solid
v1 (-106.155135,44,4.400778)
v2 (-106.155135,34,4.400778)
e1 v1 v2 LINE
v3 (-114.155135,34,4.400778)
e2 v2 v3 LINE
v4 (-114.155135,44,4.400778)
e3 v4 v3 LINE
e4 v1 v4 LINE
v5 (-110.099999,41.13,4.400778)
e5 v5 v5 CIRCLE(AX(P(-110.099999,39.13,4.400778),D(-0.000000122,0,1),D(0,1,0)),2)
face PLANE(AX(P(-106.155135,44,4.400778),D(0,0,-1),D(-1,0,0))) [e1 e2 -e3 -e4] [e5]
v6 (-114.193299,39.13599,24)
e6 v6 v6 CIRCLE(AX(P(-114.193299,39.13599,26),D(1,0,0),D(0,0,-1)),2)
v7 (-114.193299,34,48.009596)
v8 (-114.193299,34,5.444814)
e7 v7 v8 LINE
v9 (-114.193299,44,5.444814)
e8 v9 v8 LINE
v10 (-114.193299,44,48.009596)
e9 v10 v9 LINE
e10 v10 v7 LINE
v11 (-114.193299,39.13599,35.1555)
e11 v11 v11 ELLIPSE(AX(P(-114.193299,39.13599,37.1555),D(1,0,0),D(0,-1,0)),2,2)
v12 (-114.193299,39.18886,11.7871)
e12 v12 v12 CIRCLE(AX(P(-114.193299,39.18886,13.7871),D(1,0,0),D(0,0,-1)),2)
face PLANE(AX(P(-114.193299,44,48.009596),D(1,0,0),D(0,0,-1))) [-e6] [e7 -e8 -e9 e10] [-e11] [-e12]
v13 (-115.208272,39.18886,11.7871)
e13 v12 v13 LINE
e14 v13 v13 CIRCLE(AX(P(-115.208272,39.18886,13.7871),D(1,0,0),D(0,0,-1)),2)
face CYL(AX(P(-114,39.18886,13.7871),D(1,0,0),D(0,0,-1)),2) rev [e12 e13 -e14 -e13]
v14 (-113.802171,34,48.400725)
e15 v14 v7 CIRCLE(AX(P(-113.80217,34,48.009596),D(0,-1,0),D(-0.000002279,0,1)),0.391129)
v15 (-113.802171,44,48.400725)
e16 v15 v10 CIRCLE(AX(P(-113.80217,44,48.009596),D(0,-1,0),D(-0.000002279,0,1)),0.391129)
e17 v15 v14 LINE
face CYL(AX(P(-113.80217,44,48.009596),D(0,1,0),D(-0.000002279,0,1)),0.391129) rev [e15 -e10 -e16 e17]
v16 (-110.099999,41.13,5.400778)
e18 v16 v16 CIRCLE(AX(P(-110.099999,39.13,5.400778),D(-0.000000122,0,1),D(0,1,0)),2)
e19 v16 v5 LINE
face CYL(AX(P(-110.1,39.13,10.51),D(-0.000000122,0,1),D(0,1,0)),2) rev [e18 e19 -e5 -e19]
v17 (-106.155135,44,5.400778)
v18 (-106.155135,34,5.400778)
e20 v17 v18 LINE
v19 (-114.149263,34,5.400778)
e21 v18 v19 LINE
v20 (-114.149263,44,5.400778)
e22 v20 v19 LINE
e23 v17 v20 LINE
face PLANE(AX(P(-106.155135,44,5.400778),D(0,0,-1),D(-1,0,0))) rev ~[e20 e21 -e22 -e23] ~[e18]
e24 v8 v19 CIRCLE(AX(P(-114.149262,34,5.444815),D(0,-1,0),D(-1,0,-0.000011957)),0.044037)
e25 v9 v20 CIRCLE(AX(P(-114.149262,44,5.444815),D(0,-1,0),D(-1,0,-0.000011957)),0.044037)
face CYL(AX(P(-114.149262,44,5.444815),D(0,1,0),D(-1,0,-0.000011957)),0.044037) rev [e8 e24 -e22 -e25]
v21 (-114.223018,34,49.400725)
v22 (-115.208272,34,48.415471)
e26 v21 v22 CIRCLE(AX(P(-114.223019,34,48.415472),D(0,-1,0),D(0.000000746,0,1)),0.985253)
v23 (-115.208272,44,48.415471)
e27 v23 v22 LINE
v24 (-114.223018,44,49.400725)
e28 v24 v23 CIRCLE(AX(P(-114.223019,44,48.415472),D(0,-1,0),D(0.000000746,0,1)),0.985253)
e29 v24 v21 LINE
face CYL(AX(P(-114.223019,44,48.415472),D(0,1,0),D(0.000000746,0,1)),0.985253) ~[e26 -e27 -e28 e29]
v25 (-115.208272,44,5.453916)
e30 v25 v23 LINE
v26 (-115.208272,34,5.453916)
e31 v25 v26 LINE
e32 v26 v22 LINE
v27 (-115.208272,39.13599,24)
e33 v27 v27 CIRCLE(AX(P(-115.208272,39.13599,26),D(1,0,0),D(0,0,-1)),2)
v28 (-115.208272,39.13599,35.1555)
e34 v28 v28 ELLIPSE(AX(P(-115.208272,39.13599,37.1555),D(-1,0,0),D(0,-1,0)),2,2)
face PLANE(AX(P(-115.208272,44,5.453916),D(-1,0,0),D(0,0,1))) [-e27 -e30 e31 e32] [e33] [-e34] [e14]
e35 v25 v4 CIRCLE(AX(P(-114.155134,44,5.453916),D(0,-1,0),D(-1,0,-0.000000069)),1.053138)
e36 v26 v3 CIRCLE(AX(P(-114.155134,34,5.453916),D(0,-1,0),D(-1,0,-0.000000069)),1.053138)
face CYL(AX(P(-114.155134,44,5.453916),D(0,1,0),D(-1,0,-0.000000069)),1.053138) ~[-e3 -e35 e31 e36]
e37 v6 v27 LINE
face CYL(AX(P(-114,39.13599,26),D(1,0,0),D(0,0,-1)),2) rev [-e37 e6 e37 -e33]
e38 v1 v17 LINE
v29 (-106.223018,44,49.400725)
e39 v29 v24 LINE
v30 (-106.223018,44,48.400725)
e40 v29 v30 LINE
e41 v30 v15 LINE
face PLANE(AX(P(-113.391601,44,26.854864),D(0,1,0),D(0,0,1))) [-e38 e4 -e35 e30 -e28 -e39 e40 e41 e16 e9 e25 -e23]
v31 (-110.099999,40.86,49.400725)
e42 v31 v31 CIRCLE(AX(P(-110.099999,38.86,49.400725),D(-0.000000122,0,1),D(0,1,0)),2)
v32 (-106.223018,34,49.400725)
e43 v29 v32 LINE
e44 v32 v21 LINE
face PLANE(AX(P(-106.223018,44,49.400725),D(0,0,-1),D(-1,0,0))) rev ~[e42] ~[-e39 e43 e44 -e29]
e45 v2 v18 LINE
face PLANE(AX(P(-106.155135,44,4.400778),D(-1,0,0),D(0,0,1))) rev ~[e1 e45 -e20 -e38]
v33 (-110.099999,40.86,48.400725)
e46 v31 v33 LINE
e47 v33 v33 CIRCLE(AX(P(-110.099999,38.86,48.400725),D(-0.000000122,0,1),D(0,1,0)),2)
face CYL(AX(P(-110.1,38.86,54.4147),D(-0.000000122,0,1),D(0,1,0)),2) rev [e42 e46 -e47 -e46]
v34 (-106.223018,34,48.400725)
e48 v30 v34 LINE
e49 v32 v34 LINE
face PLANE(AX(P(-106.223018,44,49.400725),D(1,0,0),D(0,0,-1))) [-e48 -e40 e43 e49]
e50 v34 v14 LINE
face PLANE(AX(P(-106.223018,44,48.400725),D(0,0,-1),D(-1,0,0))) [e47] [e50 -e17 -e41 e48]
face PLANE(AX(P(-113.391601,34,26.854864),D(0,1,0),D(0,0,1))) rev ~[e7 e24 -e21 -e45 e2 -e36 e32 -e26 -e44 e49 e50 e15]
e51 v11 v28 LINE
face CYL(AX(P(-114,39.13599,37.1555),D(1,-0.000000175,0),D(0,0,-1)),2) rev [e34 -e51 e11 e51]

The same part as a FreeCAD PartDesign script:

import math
import FreeCAD as App
import Part
import Sketcher
Q = App.Units.Quantity

doc = App.newDocument("Part")
body = doc.addObject("PartDesign::Body", "Body")

# Sketch on XY plane
sketch1 = doc.addObject("Sketcher::SketchObject", "Sketch")
body.addObject(sketch1)
sketch1.AttachmentSupport = (doc.XY_Plane, [""])
sketch1.MapMode = "FlatFace"
sketch1.addGeometry(Part.Circle(App.Vector(0, 0, 0), App.Vector(0, 0, 1), 2), False)
sketch1.addConstraint([
    Sketcher.Constraint("Coincident", 0, 3, -1, 1),
    Sketcher.Constraint("Diameter", 0, Q("4 mm")),
])
pad1 = doc.addObject("PartDesign::Pad", "Pad")
body.addObject(pad1)
pad1.Profile = sketch1
pad1.Length = 10
body2 = doc.addObject("PartDesign::Body", "Body001")
doc.recompute()

body.Placement = App.Placement(App.Vector(0, 0, 0), App.Rotation(App.Vector(0, 1, 0), 90))
boolean = doc.addObject("PartDesign::Boolean", "Boolean")
body2.addObject(boolean)
boolean.Type = "Fuse"
boolean.addObjects([body])
body3 = doc.addObject("PartDesign::Body", "Body002")
doc.recompute()

body2.Placement = App.Placement(App.Vector(15.49, 3.9, 4.87), App.Rotation(App.Vector(0, 0, 1), 0.000007))
boolean2 = doc.addObject("PartDesign::Boolean", "Boolean001")
body3.addObject(boolean2)
boolean2.Type = "Fuse"
boolean2.addObjects([body2])
body4 = doc.addObject("PartDesign::Body", "Body003")

# Sketch on XY plane
sketch2 = doc.addObject("Sketcher::SketchObject", "Sketch001")
body4.addObject(sketch2)
sketch2.AttachmentSupport = (doc.getObject("XY_Plane003"), [""])
sketch2.MapMode = "FlatFace"
sketch2.addGeometry(Part.Circle(App.Vector(0, 0, 0), App.Vector(0, 0, 1), 2), False)
sketch2.addConstraint([
    Sketcher.Constraint("Coincident", 0, 3, -1, 1),
    Sketcher.Constraint("Diameter", 0, Q("4 mm")),
])
pad2 = doc.addObject("PartDesign::Pad", "Pad001")
body4.addObject(pad2)
pad2.Profile = sketch2
pad2.Length = 10
body5 = doc.addObject("PartDesign::Body", "Body004")
doc.recompute()

body4.Placement = App.Placement(App.Vector(0, 0, 0), App.Rotation(App.Vector(0, 1, 0), 90))
boolean3 = doc.addObject("PartDesign::Boolean", "Boolean002")
body5.addObject(boolean3)
boolean3.Type = "Fuse"
boolean3.addObjects([body4])
body6 = doc.addObject("PartDesign::Body", "Body005")
doc.recompute()

body5.Placement = App.Placement(App.Vector(-28.4147, 3.9, 5.14), App.Rotation(App.Vector(0, 0, 1), 0.000007))
boolean4 = doc.addObject("PartDesign::Boolean", "Boolean003")
body6.addObject(boolean4)
boolean4.Type = "Fuse"
boolean4.addObjects([body5])
body7 = doc.addObject("PartDesign::Body", "Body006")

# Sketch on XY plane
sketch3 = doc.addObject("Sketcher::SketchObject", "Sketch002")
body7.addObject(sketch3)
sketch3.AttachmentSupport = (doc.getObject("XY_Plane006"), [""])
sketch3.MapMode = "FlatFace"
sketch3.addGeometry(Part.Circle(App.Vector(0, 0, 0), App.Vector(0, 0, 1), 2), False)
sketch3.addConstraint([
    Sketcher.Constraint("Coincident", 0, 3, -1, 1),
    Sketcher.Constraint("Diameter", 0, Q("4 mm")),
])
pad3 = doc.addObject("PartDesign::Pad", "Pad002")
body7.addObject(pad3)
pad3.Profile = sketch3
pad3.Length = 2
body8 = doc.addObject("PartDesign::Body", "Body007")
doc.recompute()

body7.Placement = App.Placement(App.Vector(0, 0, 0), App.Rotation(App.Vector(1, 0, 0), 271.492946))
boolean5 = doc.addObject("PartDesign::Boolean", "Boolean004")
body8.addObject(boolean5)
boolean5.Type = "Fuse"
boolean5.addObjects([body7])
body9 = doc.addObject("PartDesign::Body", "Body008")
doc.recompute()

body8.Placement = App.Placement(App.Vector(0, 0, 0), App.Rotation(App.Vector(0, 1, 0), 272.98249))
boolean6 = doc.addObject("PartDesign::Boolean", "Boolean005")
body9.addObject(boolean6)
boolean6.Type = "Fuse"
boolean6.addObjects([body8])
body10 = doc.addObject("PartDesign::Body", "Body009")
doc.recompute()

body9.Placement = App.Placement(App.Vector(-26, 5.29, 4.9), App.Rotation(App.Vector(0, 0, 1), 267.755985))
boolean7 = doc.addObject("PartDesign::Boolean", "Boolean006")
body10.addObject(boolean7)
boolean7.Type = "Fuse"
boolean7.addObjects([body9])
body11 = doc.addObject("PartDesign::Body", "Body010")

# Sketch on XY plane
sketch4 = doc.addObject("Sketcher::SketchObject", "Sketch003")
body11.addObject(sketch4)
sketch4.AttachmentSupport = (doc.getObject("XY_Plane010"), [""])
sketch4.MapMode = "FlatFace"
sketch4.addGeometry(Part.Circle(App.Vector(0, 0, 0), App.Vector(0, 0, 1), 2), False)
sketch4.addConstraint([
    Sketcher.Constraint("Coincident", 0, 3, -1, 1),
    Sketcher.Constraint("Diameter", 0, Q("4 mm")),
])
pad4 = doc.addObject("PartDesign::Pad", "Pad003")
body11.addObject(pad4)
pad4.Profile = sketch4
pad4.Length = 2
body12 = doc.addObject("PartDesign::Body", "Body011")
doc.recompute()

body11.Placement = App.Placement(App.Vector(-11.1555, 0, 4.86401), App.Rotation(App.Vector(1, 0, 0), 90.00001))
boolean8 = doc.addObject("PartDesign::Boolean", "Boolean007")
body12.addObject(boolean8)
boolean8.Type = "Fuse"
boolean8.addObjects([body11])
body13 = doc.addObject("PartDesign::Body", "Body012")

# Sketch on XY plane
sketch5 = doc.addObject("Sketcher::SketchObject", "Sketch004")
body13.addObject(sketch5)
sketch5.AttachmentSupport = (doc.getObject("XY_Plane012"), [""])
sketch5.MapMode = "FlatFace"
sketch5.addGeometry(Part.Circle(App.Vector(0, 0, 0), App.Vector(0, 0, 1), 2), False)
sketch5.addConstraint([
    Sketcher.Constraint("Coincident", 0, 3, -1, 1),
    Sketcher.Constraint("Diameter", 0, Q("4 mm")),
])
pad5 = doc.addObject("PartDesign::Pad", "Pad004")
body13.addObject(pad5)
pad5.Profile = sketch5
pad5.Length = 2
body14 = doc.addObject("PartDesign::Body", "Body013")
doc.recompute()

body13.Placement = App.Placement(App.Vector(0, 0, 0), App.Rotation(App.Vector(1, 0, 0), 90))
boolean9 = doc.addObject("PartDesign::Boolean", "Boolean008")
body14.addObject(boolean9)
boolean9.Type = "Fuse"
boolean9.addObjects([body13])
body15 = doc.addObject("PartDesign::Body", "Body014")
doc.recompute()

body14.Placement = App.Placement(App.Vector(0, 0, 4.86401), App.Rotation(App.Vector(0, 0, 1), 0))
boolean10 = doc.addObject("PartDesign::Boolean", "Boolean009")
body15.addObject(boolean10)
boolean10.Type = "Fuse"
boolean10.addObjects([body14])
body16 = doc.addObject("PartDesign::Body", "Body015")

# Sketch on XY plane
sketch6 = doc.addObject("Sketcher::SketchObject", "Sketch005")
body16.addObject(sketch6)
sketch6.AttachmentSupport = (doc.getObject("XY_Plane015"), [""])
sketch6.MapMode = "FlatFace"
sketch6.addGeometry(Part.Circle(App.Vector(0, 0, 0), App.Vector(0, 0, 1), 2), False)
sketch6.addConstraint([
    Sketcher.Constraint("Coincident", 0, 3, -1, 1),
    Sketcher.Constraint("Diameter", 0, Q("4 mm")),
])
pad6 = doc.addObject("PartDesign::Pad", "Pad005")
body16.addObject(pad6)
pad6.Profile = sketch6
pad6.Length = 2
body17 = doc.addObject("PartDesign::Body", "Body016")
doc.recompute()

body16.Placement = App.Placement(App.Vector(0, 0, 0), App.Rotation(App.Vector(1, 0, 0), 90))
boolean11 = doc.addObject("PartDesign::Boolean", "Boolean010")
body17.addObject(boolean11)
boolean11.Type = "Fuse"
boolean11.addObjects([body16])
body18 = doc.addObject("PartDesign::Body", "Body017")
doc.recompute()

body17.Placement = App.Placement(App.Vector(12.2129, 0, 4.81114), App.Rotation(App.Vector(0, 0, 1), 0))
boolean12 = doc.addObject("PartDesign::Boolean", "Boolean011")
body18.addObject(boolean12)
boolean12.Type = "Fuse"
boolean12.addObjects([body17])
body19 = doc.addObject("PartDesign::Body", "Body018")

# Sketch on XY plane
sketch7 = doc.addObject("Sketcher::SketchObject", "Sketch006")
body19.addObject(sketch7)
sketch7.AttachmentSupport = (doc.getObject("XY_Plane018"), [""])
sketch7.MapMode = "FlatFace"
sketch7.addGeometry(Part.Circle(App.Vector(0, 0, 0), App.Vector(0, 0, 1), 2), False)
sketch7.addConstraint([
    Sketcher.Constraint("Coincident", 0, 3, -1, 1),
    Sketcher.Constraint("Diameter", 0, Q("4 mm")),
])
pad7 = doc.addObject("PartDesign::Pad", "Pad006")
body19.addObject(pad7)
pad7.Profile = sketch7
pad7.Length = 2
body20 = doc.addObject("PartDesign::Body", "Body019")
doc.recompute()

body19.Placement = App.Placement(App.Vector(0, 0, 0), App.Rotation(App.Vector(1, 0, 0), 271.492946))
boolean13 = doc.addObject("PartDesign::Boolean", "Boolean012")
body20.addObject(boolean13)
boolean13.Type = "Fuse"
boolean13.addObjects([body19])
body21 = doc.addObject("PartDesign::Body", "Body020")
doc.recompute()

body20.Placement = App.Placement(App.Vector(0, 0, 0), App.Rotation(App.Vector(0, 1, 0), 272.98249))
boolean14 = doc.addObject("PartDesign::Boolean", "Boolean013")
body21.addObject(boolean14)
boolean14.Type = "Fuse"
boolean14.addObjects([body20])
body22 = doc.addObject("PartDesign::Body", "Body021")
doc.recompute()

body21.Placement = App.Placement(App.Vector(25, 5.38, 4.9), App.Rotation(App.Vector(0, 0, 1), 267.755985))
boolean15 = doc.addObject("PartDesign::Boolean", "Boolean014")
body22.addObject(boolean15)
boolean15.Type = "Fuse"
boolean15.addObjects([body21])
body23 = doc.addObject("PartDesign::Body", "Body022")

# Sketch on XY plane
sketch8 = doc.addObject("Sketcher::SketchObject", "Sketch007")
body23.addObject(sketch8)
sketch8.AttachmentSupport = (doc.getObject("XY_Plane022"), [""])
sketch8.MapMode = "FlatFace"
sketch8.addGeometry([
    Part.LineSegment(App.Vector(-22.415471, -1.208272, 0), App.Vector(20.546084, -1.208272, 0)),  # 0
    Part.ArcOfCircle(Part.Circle(App.Vector(20.546084, -0.155134, 0), App.Vector(0, 0, 1), 1.053138), math.radians(-89.999996), math.radians(-0.000058)),  # 1
    Part.LineSegment(App.Vector(21.599222, -0.155135, 0), App.Vector(21.599222, 7.844865, 0)),  # 2
    Part.LineSegment(App.Vector(21.599222, 7.844865, 0), App.Vector(20.599222, 7.844865, 0)),  # 3
    Part.LineSegment(App.Vector(20.599222, 7.844865, 0), App.Vector(20.599222, -0.149263, 0)),  # 4
    Part.ArcOfCircle(Part.Circle(App.Vector(20.555185, -0.149262, 0), App.Vector(0, 0, 1), 0.044037), math.radians(-89.999314), math.radians(-0.000686)),  # 5
    Part.LineSegment(App.Vector(20.555186, -0.193299, 0), App.Vector(-22.009596, -0.193299, 0)),  # 6
    Part.ArcOfCircle(Part.Circle(App.Vector(-22.009596, 0.19783, 0), App.Vector(0, 0, 1), 0.391129), math.radians(-179.999869), math.radians(-89.999984)),  # 7
    Part.LineSegment(App.Vector(-22.400725, 0.197829, 0), App.Vector(-22.400725, 7.776982, 0)),  # 8
    Part.LineSegment(App.Vector(-22.400725, 7.776982, 0), App.Vector(-23.400725, 7.776982, 0)),  # 9
    Part.LineSegment(App.Vector(-23.400725, 7.776982, 0), App.Vector(-23.400725, -0.223018, 0)),  # 10
    Part.ArcOfCircle(Part.Circle(App.Vector(-22.415472, -0.223019, 0), App.Vector(0, 0, 1), 0.985253), math.radians(179.999957), math.radians(270.000043)),  # 11
], False)
sketch8.addConstraint([
    Sketcher.Constraint("Tangent", 0, 2, 1, 1),
    Sketcher.Constraint("Tangent", 1, 2, 2, 1),
    Sketcher.Constraint("Coincident", 2, 2, 3, 1),
    Sketcher.Constraint("Coincident", 3, 2, 4, 1),
    Sketcher.Constraint("Coincident", 4, 2, 5, 2),
    Sketcher.Constraint("Coincident", 5, 1, 6, 1),
    Sketcher.Constraint("Tangent", 6, 2, 7, 2),
    Sketcher.Constraint("Coincident", 7, 1, 8, 1),
    Sketcher.Constraint("Coincident", 8, 2, 9, 1),
    Sketcher.Constraint("Coincident", 9, 2, 10, 1),
    Sketcher.Constraint("Tangent", 10, 2, 11, 1),
    Sketcher.Constraint("Tangent", 11, 2, 0, 1),
    Sketcher.Constraint("Horizontal", 0),
    Sketcher.Constraint("Vertical", 2),
    Sketcher.Constraint("Horizontal", 3),
    Sketcher.Constraint("Vertical", 4),
    Sketcher.Constraint("Horizontal", 6),
    Sketcher.Constraint("Vertical", 8),
    Sketcher.Constraint("Horizontal", 9),
    Sketcher.Constraint("Vertical", 10),
    Sketcher.Constraint("Horizontal", 5, 3, 4, 2),
    Sketcher.Constraint("Equal", 3, 9),
    Sketcher.Constraint("Equal", 2, 10),
    Sketcher.Constraint("DistanceX", 3, 2, 3, 1, Q("1 mm")),
    Sketcher.Constraint("DistanceY", 2, 1, 2, 2, Q("8 mm")),
    Sketcher.Constraint("Radius", 1, Q("1.053138 mm")),
    Sketcher.Constraint("Radius", 7, Q("0.391129 mm")),
    Sketcher.Constraint("Radius", 5, Q("0.044037 mm")),
    Sketcher.Constraint("Radius", 11, Q("0.985253 mm")),
    Sketcher.Constraint("DistanceX", 6, 2, 6, 1, Q("42.564782 mm")),
    Sketcher.Constraint("DistanceY", 4, 2, 4, 1, Q("7.994128 mm")),
    Sketcher.Constraint("DistanceY", 5, 1, -1, 1, Q("0.193299 mm")),
    Sketcher.Constraint("DistanceX", 0, 2, 5, 1, Q("0.009102 mm")),
    Sketcher.Constraint("DistanceY", 11, 2, 7, 1, Q("1.406101 mm")),
    Sketcher.Constraint("DistanceX", 11, 3, -1, 1, Q("22.415472 mm")),
])
pad8 = doc.addObject("PartDesign::Pad", "Pad007")
body23.addObject(pad8)
pad8.Profile = sketch8
pad8.Length = 10
doc.recompute()

boolean16 = doc.addObject("PartDesign::Boolean", "Boolean015")
body23.addObject(boolean16)
boolean16.Type = "Cut"
boolean16.addObjects([body22])
doc.recompute()

boolean17 = doc.addObject("PartDesign::Boolean", "Boolean016")
body23.addObject(boolean17)
boolean17.Type = "Cut"
boolean17.addObjects([body18])
doc.recompute()

boolean18 = doc.addObject("PartDesign::Boolean", "Boolean017")
body23.addObject(boolean18)
boolean18.Type = "Cut"
boolean18.addObjects([body15])
doc.recompute()

boolean19 = doc.addObject("PartDesign::Boolean", "Boolean018")
body23.addObject(boolean19)
boolean19.Type = "Cut"
boolean19.addObjects([body12])
doc.recompute()

boolean20 = doc.addObject("PartDesign::Boolean", "Boolean019")
body23.addObject(boolean20)
boolean20.Type = "Cut"
boolean20.addObjects([body10])
doc.recompute()

boolean21 = doc.addObject("PartDesign::Boolean", "Boolean020")
body23.addObject(boolean21)
boolean21.Type = "Cut"
boolean21.addObjects([body6])
doc.recompute()

boolean22 = doc.addObject("PartDesign::Boolean", "Boolean021")
body23.addObject(boolean22)
boolean22.Type = "Cut"
boolean22.addObjects([body3])
body24 = doc.addObject("PartDesign::Body", "Body023")
doc.recompute()

body23.Placement = App.Placement(App.Vector(0, 0, 0), App.Rotation(App.Vector(0, 1, 0), 90))
boolean23 = doc.addObject("PartDesign::Boolean", "Boolean022")
body24.addObject(boolean23)
boolean23.Type = "Fuse"
boolean23.addObjects([body23])
body25 = doc.addObject("PartDesign::Body", "Body024")
doc.recompute()

body24.Placement = App.Placement(App.Vector(-114, 44, 26), App.Rotation(App.Vector(0, 0, 1), 270))
boolean24 = doc.addObject("PartDesign::Boolean", "Boolean023")
body25.addObject(boolean24)
boolean24.Type = "Fuse"
boolean24.addObjects([body24])

doc.recompute()
